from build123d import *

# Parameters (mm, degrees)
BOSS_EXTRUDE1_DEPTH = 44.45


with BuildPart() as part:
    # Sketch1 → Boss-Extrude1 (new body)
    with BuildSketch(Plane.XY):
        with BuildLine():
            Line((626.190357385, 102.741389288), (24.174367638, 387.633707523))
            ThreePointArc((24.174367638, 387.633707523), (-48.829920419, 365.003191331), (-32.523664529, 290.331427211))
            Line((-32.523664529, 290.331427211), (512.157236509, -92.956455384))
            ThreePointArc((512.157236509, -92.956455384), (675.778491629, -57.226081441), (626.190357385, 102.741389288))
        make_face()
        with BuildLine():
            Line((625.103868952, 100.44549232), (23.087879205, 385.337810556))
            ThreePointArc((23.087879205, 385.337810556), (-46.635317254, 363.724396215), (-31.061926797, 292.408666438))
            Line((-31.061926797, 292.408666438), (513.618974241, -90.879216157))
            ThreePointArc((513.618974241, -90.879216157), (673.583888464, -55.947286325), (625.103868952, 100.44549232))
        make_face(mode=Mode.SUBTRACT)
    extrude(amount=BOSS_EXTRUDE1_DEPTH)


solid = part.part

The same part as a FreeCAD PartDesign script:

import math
import FreeCAD as App
import Part
import Sketcher

V = App.Vector
Q = App.Units.Quantity

doc = App.newDocument("Part")
body = doc.addObject("PartDesign::Body", "Body")

sketch1 = doc.addObject("Sketcher::SketchObject", "Sketch")
body.addObject(sketch1)
sketch1.AttachmentSupport = (doc.XY_Plane, [""])
sketch1.MapMode = "FlatFace"
sketch1.addGeometry(Part.LineSegment(V(626, 103, 0), V(24, 388, 0)), False)
sketch1.addGeometry(Part.ArcOfCircle(Part.Circle(V(0, 337, 0), V(0, 0, 1), 57), math.radians(65), math.radians(235)), False)
sketch1.addGeometry(Part.LineSegment(V(-33, 290, 0), V(512, -93, 0)), False)
sketch1.addGeometry(Part.ArcOfCircle(Part.Circle(V(578, 0, 0), V(0, 0, 1), 114), math.radians(-125), math.radians(65)), False)
sketch1.addGeometry(Part.LineSegment(V(23, 385, 0), V(625, 100, 0)), False)
sketch1.addGeometry(Part.ArcOfCircle(Part.Circle(V(578, 0, 0), V(0, 0, 1), 111), math.radians(-125), math.radians(65)), False)
sketch1.addGeometry(Part.LineSegment(V(514, -91, 0), V(-31, 292, 0)), False)
sketch1.addGeometry(Part.ArcOfCircle(Part.Circle(V(0, 337, 0), V(0, 0, 1), 54), math.radians(65), math.radians(235)), False)
sketch1.addConstraint(Sketcher.Constraint("Tangent", 0, 2, 1, 1))
sketch1.addConstraint(Sketcher.Constraint("Tangent", 1, 2, 2, 1))
sketch1.addConstraint(Sketcher.Constraint("Tangent", 2, 2, 3, 1))
sketch1.addConstraint(Sketcher.Constraint("Tangent", 3, 2, 0, 1))
sketch1.addConstraint(Sketcher.Constraint("Tangent", 4, 2, 5, 2))
sketch1.addConstraint(Sketcher.Constraint("Tangent", 5, 1, 6, 1))
sketch1.addConstraint(Sketcher.Constraint("Tangent", 6, 2, 7, 2))
sketch1.addConstraint(Sketcher.Constraint("Tangent", 7, 1, 4, 1))
sketch1.addConstraint(Sketcher.Constraint("Coincident", 5, 3, 3, 3))
sketch1.addConstraint(Sketcher.Constraint("Coincident", 7, 3, 1, 3))
sketch1.addConstraint(Sketcher.Constraint("PointOnObject", 1, 3, -2))
sketch1.addConstraint(Sketcher.Constraint("PointOnObject", 3, 3, -1))
sketch1.addConstraint(Sketcher.Constraint("Parallel", 0, 4))
sketch1.addConstraint(Sketcher.Constraint("Radius", 1, Q("2.225 in")))
sketch1.addConstraint(Sketcher.Constraint("Radius", 3, Q("4.475 in")))
sketch1.addConstraint(Sketcher.Constraint("Radius", 5, Q("4.375 in")))
sketch1.addConstraint(Sketcher.Constraint("DistanceY", -1, 1, 1, 3, Q("13.25 in")))
sketch1.addConstraint(Sketcher.Constraint("DistanceX", -1, 1, 3, 3, Q("577.57 mm")))
pad1 = doc.addObject("PartDesign::Pad", "Pad")
body.addObject(pad1)
pad1.Profile = sketch1
pad1.Length = Q("1.75 in")

doc.recompute()
